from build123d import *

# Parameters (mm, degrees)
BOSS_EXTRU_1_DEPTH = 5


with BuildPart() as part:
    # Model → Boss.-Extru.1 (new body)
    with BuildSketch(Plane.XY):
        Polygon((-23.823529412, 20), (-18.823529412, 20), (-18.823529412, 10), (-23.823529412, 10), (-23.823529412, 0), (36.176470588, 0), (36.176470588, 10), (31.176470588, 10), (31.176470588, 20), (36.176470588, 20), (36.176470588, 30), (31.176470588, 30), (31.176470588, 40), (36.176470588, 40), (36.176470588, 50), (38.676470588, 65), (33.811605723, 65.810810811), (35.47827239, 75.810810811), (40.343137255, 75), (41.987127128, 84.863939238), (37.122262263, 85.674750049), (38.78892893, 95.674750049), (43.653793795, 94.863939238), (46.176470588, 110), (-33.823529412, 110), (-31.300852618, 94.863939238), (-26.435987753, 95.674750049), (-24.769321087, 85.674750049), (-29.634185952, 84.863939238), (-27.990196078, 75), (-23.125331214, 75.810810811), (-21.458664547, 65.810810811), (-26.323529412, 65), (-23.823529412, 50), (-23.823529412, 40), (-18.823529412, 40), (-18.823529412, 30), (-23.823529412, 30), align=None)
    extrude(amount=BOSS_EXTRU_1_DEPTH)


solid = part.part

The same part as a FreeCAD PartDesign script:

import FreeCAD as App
import Part
import Sketcher

V = App.Vector
Q = App.Units.Quantity


def add_polygon(sketch, points):
    """Adds a closed chain of lines whose ends are joined by coincident constraints."""
    first, n = sketch.GeometryCount, len(points)
    for a, b in zip(points, points[1:] + points[:1]):
        sketch.addGeometry(Part.LineSegment(App.Vector(*a, 0), App.Vector(*b, 0)), False)
    for i in range(n):
        sketch.addConstraint(Sketcher.Constraint("Coincident", first + i, 2, first + (i + 1) % n, 1))

doc = App.newDocument("Part")
body = doc.addObject("PartDesign::Body", "Body")

# Sketch on XY plane
sketch1 = body.newObject("Sketcher::SketchObject", "Sketch")
sketch1.AttachmentSupport = (doc.getObject("XY_Plane"), [""])
sketch1.MapMode = "FlatFace"
add_polygon(sketch1, [(-23.823529, 20), (-18.823529, 20), (-18.823529, 10), (-23.823529, 10), (-23.823529, 0), (36.176471, 0), (36.176471, 10), (31.176471, 10), (31.176471, 20), (36.176471, 20), (36.176471, 30), (31.176471, 30), (31.176471, 40), (36.176471, 40), (36.176471, 50), (38.676471, 65), (33.811606, 65.810811), (35.478272, 75.810811), (40.343137, 75), (41.987127, 84.863939), (37.122262, 85.67475), (38.788929, 95.67475), (43.653794, 94.863939), (46.176471, 110), (-33.823529, 110), (-31.300853, 94.863939), (-26.435988, 95.67475), (-24.769321, 85.67475), (-29.634186, 84.863939), (-27.990196, 75), (-23.125331, 75.810811), (-21.458665, 65.810811), (-26.323529, 65), (-23.823529, 50), (-23.823529, 40), (-18.823529, 40), (-18.823529, 30), (-23.823529, 30)])  # lines 0-37
sketch1.addConstraint([
    Sketcher.Constraint("Horizontal", 0),
    Sketcher.Constraint("Vertical", 1),
    Sketcher.Constraint("Horizontal", 2),
    Sketcher.Constraint("Vertical", 3),
    Sketcher.Constraint("Horizontal", 4),
    Sketcher.Constraint("Vertical", 5),
    Sketcher.Constraint("Horizontal", 6),
    Sketcher.Constraint("Vertical", 7),
    Sketcher.Constraint("Horizontal", 8),
    Sketcher.Constraint("Vertical", 9),
    Sketcher.Constraint("Horizontal", 10),
    Sketcher.Constraint("Vertical", 11),
    Sketcher.Constraint("Horizontal", 12),
    Sketcher.Constraint("Vertical", 13),
    Sketcher.Constraint("Horizontal", 23),
    Sketcher.Constraint("Vertical", 33),
    Sketcher.Constraint("Horizontal", 34),
    Sketcher.Constraint("Vertical", 35),
    Sketcher.Constraint("Horizontal", 36),
    Sketcher.Constraint("Vertical", 37),
    Sketcher.Constraint("PointOnObject", 3, 2, -1),
    Sketcher.Constraint("Perpendicular", 14, 15),
    Sketcher.Constraint("Perpendicular", 15, 16),
    Sketcher.Constraint("Perpendicular", 16, 17),
    Sketcher.Constraint("Perpendicular", 17, 18),
    Sketcher.Constraint("Perpendicular", 18, 19),
    Sketcher.Constraint("Perpendicular", 19, 20),
    Sketcher.Constraint("Perpendicular", 20, 21),
    Sketcher.Constraint("Perpendicular", 21, 22),
    Sketcher.Constraint("Perpendicular", 24, 25),
    Sketcher.Constraint("Perpendicular", 25, 26),
    Sketcher.Constraint("Perpendicular", 26, 27),
    Sketcher.Constraint("Perpendicular", 27, 28),
    Sketcher.Constraint("Perpendicular", 28, 29),
    Sketcher.Constraint("Perpendicular", 29, 30),
    Sketcher.Constraint("Perpendicular", 30, 31),
    Sketcher.Constraint("Perpendicular", 31, 32),
    Sketcher.Constraint("Horizontal", 2, 2, 5, 2),
    Sketcher.Constraint("Horizontal", 0, 2, 7, 2),
    Sketcher.Constraint("Horizontal", 21, 2, 24, 2),
    Sketcher.Constraint("Horizontal", 20, 2, 25, 2),
    Sketcher.Constraint("Horizontal", 19, 2, 26, 2),
    Sketcher.Constraint("Horizontal", 18, 2, 27, 2),
    Sketcher.Constraint("Horizontal", 17, 2, 28, 2),
    Sketcher.Constraint("Horizontal", 16, 2, 29, 2),
    Sketcher.Constraint("Horizontal", 15, 2, 30, 2),
    Sketcher.Constraint("Horizontal", 14, 2, 31, 2),
    Sketcher.Constraint("Horizontal", 13, 2, 32, 2),
    Sketcher.Constraint("Horizontal", 12, 2, 33, 2),
    Sketcher.Constraint("Horizontal", 10, 2, 35, 2),
    Sketcher.Constraint("Vertical", 5, 2, 8, 2),
    Sketcher.Constraint("Vertical", 7, 2, 10, 2),
    Sketcher.Constraint("Vertical", 9, 2, 12, 2),
    Sketcher.Constraint("Vertical", 3, 2, 32, 2),
    Sketcher.Constraint("Vertical", 1, 2, 34, 2),
    Sketcher.Constraint("Vertical", 33, 2, 36, 2),
    Sketcher.Constraint("Equal", 2, 6),
    Sketcher.Constraint("Equal", 1, 3),
    Sketcher.Constraint("Equal", 7, 9),
    Sketcher.Constraint("Equal", 9, 11),
    Sketcher.Constraint("Equal", 11, 13),
    Sketcher.Constraint("Equal", 15, 17),
    Sketcher.Constraint("Equal", 17, 19),
    Sketcher.Constraint("Equal", 16, 20),
    Sketcher.Constraint("Equal", 19, 21),
    Sketcher.Constraint("Equal", 22, 24),
    Sketcher.Constraint("DistanceX", 0, 1, 0, 2, Q("5 mm")),
    Sketcher.Constraint("DistanceX", 4, 1, 4, 2, Q("60 mm")),
    Sketcher.Constraint("DistanceX", 23, 2, 23, 1, Q("80 mm")),
    Sketcher.Constraint("DistanceY", 1, 2, 1, 1, Q("10 mm")),
    Sketcher.Constraint("Distance", 18, Q("10 mm")),
    Sketcher.Constraint("DistanceY", -1, 1, 14, 2, Q("65 mm")),
    Sketcher.Constraint("DistanceY", -1, 1, 17, 2, Q("75 mm")),
    Sketcher.Constraint("DistanceY", -1, 1, 22, 2, Q("110 mm")),
    Sketcher.Constraint("DistanceX", 16, 2, 14, 2, Q("3.198198 mm")),
    Sketcher.Constraint("DistanceX", 0, 2, -1, 1, Q("18.823529 mm")),
])
pad1 = body.newObject("PartDesign::Pad", "Pad")
pad1.Profile = sketch1
pad1.Length = 5

doc.recompute()
